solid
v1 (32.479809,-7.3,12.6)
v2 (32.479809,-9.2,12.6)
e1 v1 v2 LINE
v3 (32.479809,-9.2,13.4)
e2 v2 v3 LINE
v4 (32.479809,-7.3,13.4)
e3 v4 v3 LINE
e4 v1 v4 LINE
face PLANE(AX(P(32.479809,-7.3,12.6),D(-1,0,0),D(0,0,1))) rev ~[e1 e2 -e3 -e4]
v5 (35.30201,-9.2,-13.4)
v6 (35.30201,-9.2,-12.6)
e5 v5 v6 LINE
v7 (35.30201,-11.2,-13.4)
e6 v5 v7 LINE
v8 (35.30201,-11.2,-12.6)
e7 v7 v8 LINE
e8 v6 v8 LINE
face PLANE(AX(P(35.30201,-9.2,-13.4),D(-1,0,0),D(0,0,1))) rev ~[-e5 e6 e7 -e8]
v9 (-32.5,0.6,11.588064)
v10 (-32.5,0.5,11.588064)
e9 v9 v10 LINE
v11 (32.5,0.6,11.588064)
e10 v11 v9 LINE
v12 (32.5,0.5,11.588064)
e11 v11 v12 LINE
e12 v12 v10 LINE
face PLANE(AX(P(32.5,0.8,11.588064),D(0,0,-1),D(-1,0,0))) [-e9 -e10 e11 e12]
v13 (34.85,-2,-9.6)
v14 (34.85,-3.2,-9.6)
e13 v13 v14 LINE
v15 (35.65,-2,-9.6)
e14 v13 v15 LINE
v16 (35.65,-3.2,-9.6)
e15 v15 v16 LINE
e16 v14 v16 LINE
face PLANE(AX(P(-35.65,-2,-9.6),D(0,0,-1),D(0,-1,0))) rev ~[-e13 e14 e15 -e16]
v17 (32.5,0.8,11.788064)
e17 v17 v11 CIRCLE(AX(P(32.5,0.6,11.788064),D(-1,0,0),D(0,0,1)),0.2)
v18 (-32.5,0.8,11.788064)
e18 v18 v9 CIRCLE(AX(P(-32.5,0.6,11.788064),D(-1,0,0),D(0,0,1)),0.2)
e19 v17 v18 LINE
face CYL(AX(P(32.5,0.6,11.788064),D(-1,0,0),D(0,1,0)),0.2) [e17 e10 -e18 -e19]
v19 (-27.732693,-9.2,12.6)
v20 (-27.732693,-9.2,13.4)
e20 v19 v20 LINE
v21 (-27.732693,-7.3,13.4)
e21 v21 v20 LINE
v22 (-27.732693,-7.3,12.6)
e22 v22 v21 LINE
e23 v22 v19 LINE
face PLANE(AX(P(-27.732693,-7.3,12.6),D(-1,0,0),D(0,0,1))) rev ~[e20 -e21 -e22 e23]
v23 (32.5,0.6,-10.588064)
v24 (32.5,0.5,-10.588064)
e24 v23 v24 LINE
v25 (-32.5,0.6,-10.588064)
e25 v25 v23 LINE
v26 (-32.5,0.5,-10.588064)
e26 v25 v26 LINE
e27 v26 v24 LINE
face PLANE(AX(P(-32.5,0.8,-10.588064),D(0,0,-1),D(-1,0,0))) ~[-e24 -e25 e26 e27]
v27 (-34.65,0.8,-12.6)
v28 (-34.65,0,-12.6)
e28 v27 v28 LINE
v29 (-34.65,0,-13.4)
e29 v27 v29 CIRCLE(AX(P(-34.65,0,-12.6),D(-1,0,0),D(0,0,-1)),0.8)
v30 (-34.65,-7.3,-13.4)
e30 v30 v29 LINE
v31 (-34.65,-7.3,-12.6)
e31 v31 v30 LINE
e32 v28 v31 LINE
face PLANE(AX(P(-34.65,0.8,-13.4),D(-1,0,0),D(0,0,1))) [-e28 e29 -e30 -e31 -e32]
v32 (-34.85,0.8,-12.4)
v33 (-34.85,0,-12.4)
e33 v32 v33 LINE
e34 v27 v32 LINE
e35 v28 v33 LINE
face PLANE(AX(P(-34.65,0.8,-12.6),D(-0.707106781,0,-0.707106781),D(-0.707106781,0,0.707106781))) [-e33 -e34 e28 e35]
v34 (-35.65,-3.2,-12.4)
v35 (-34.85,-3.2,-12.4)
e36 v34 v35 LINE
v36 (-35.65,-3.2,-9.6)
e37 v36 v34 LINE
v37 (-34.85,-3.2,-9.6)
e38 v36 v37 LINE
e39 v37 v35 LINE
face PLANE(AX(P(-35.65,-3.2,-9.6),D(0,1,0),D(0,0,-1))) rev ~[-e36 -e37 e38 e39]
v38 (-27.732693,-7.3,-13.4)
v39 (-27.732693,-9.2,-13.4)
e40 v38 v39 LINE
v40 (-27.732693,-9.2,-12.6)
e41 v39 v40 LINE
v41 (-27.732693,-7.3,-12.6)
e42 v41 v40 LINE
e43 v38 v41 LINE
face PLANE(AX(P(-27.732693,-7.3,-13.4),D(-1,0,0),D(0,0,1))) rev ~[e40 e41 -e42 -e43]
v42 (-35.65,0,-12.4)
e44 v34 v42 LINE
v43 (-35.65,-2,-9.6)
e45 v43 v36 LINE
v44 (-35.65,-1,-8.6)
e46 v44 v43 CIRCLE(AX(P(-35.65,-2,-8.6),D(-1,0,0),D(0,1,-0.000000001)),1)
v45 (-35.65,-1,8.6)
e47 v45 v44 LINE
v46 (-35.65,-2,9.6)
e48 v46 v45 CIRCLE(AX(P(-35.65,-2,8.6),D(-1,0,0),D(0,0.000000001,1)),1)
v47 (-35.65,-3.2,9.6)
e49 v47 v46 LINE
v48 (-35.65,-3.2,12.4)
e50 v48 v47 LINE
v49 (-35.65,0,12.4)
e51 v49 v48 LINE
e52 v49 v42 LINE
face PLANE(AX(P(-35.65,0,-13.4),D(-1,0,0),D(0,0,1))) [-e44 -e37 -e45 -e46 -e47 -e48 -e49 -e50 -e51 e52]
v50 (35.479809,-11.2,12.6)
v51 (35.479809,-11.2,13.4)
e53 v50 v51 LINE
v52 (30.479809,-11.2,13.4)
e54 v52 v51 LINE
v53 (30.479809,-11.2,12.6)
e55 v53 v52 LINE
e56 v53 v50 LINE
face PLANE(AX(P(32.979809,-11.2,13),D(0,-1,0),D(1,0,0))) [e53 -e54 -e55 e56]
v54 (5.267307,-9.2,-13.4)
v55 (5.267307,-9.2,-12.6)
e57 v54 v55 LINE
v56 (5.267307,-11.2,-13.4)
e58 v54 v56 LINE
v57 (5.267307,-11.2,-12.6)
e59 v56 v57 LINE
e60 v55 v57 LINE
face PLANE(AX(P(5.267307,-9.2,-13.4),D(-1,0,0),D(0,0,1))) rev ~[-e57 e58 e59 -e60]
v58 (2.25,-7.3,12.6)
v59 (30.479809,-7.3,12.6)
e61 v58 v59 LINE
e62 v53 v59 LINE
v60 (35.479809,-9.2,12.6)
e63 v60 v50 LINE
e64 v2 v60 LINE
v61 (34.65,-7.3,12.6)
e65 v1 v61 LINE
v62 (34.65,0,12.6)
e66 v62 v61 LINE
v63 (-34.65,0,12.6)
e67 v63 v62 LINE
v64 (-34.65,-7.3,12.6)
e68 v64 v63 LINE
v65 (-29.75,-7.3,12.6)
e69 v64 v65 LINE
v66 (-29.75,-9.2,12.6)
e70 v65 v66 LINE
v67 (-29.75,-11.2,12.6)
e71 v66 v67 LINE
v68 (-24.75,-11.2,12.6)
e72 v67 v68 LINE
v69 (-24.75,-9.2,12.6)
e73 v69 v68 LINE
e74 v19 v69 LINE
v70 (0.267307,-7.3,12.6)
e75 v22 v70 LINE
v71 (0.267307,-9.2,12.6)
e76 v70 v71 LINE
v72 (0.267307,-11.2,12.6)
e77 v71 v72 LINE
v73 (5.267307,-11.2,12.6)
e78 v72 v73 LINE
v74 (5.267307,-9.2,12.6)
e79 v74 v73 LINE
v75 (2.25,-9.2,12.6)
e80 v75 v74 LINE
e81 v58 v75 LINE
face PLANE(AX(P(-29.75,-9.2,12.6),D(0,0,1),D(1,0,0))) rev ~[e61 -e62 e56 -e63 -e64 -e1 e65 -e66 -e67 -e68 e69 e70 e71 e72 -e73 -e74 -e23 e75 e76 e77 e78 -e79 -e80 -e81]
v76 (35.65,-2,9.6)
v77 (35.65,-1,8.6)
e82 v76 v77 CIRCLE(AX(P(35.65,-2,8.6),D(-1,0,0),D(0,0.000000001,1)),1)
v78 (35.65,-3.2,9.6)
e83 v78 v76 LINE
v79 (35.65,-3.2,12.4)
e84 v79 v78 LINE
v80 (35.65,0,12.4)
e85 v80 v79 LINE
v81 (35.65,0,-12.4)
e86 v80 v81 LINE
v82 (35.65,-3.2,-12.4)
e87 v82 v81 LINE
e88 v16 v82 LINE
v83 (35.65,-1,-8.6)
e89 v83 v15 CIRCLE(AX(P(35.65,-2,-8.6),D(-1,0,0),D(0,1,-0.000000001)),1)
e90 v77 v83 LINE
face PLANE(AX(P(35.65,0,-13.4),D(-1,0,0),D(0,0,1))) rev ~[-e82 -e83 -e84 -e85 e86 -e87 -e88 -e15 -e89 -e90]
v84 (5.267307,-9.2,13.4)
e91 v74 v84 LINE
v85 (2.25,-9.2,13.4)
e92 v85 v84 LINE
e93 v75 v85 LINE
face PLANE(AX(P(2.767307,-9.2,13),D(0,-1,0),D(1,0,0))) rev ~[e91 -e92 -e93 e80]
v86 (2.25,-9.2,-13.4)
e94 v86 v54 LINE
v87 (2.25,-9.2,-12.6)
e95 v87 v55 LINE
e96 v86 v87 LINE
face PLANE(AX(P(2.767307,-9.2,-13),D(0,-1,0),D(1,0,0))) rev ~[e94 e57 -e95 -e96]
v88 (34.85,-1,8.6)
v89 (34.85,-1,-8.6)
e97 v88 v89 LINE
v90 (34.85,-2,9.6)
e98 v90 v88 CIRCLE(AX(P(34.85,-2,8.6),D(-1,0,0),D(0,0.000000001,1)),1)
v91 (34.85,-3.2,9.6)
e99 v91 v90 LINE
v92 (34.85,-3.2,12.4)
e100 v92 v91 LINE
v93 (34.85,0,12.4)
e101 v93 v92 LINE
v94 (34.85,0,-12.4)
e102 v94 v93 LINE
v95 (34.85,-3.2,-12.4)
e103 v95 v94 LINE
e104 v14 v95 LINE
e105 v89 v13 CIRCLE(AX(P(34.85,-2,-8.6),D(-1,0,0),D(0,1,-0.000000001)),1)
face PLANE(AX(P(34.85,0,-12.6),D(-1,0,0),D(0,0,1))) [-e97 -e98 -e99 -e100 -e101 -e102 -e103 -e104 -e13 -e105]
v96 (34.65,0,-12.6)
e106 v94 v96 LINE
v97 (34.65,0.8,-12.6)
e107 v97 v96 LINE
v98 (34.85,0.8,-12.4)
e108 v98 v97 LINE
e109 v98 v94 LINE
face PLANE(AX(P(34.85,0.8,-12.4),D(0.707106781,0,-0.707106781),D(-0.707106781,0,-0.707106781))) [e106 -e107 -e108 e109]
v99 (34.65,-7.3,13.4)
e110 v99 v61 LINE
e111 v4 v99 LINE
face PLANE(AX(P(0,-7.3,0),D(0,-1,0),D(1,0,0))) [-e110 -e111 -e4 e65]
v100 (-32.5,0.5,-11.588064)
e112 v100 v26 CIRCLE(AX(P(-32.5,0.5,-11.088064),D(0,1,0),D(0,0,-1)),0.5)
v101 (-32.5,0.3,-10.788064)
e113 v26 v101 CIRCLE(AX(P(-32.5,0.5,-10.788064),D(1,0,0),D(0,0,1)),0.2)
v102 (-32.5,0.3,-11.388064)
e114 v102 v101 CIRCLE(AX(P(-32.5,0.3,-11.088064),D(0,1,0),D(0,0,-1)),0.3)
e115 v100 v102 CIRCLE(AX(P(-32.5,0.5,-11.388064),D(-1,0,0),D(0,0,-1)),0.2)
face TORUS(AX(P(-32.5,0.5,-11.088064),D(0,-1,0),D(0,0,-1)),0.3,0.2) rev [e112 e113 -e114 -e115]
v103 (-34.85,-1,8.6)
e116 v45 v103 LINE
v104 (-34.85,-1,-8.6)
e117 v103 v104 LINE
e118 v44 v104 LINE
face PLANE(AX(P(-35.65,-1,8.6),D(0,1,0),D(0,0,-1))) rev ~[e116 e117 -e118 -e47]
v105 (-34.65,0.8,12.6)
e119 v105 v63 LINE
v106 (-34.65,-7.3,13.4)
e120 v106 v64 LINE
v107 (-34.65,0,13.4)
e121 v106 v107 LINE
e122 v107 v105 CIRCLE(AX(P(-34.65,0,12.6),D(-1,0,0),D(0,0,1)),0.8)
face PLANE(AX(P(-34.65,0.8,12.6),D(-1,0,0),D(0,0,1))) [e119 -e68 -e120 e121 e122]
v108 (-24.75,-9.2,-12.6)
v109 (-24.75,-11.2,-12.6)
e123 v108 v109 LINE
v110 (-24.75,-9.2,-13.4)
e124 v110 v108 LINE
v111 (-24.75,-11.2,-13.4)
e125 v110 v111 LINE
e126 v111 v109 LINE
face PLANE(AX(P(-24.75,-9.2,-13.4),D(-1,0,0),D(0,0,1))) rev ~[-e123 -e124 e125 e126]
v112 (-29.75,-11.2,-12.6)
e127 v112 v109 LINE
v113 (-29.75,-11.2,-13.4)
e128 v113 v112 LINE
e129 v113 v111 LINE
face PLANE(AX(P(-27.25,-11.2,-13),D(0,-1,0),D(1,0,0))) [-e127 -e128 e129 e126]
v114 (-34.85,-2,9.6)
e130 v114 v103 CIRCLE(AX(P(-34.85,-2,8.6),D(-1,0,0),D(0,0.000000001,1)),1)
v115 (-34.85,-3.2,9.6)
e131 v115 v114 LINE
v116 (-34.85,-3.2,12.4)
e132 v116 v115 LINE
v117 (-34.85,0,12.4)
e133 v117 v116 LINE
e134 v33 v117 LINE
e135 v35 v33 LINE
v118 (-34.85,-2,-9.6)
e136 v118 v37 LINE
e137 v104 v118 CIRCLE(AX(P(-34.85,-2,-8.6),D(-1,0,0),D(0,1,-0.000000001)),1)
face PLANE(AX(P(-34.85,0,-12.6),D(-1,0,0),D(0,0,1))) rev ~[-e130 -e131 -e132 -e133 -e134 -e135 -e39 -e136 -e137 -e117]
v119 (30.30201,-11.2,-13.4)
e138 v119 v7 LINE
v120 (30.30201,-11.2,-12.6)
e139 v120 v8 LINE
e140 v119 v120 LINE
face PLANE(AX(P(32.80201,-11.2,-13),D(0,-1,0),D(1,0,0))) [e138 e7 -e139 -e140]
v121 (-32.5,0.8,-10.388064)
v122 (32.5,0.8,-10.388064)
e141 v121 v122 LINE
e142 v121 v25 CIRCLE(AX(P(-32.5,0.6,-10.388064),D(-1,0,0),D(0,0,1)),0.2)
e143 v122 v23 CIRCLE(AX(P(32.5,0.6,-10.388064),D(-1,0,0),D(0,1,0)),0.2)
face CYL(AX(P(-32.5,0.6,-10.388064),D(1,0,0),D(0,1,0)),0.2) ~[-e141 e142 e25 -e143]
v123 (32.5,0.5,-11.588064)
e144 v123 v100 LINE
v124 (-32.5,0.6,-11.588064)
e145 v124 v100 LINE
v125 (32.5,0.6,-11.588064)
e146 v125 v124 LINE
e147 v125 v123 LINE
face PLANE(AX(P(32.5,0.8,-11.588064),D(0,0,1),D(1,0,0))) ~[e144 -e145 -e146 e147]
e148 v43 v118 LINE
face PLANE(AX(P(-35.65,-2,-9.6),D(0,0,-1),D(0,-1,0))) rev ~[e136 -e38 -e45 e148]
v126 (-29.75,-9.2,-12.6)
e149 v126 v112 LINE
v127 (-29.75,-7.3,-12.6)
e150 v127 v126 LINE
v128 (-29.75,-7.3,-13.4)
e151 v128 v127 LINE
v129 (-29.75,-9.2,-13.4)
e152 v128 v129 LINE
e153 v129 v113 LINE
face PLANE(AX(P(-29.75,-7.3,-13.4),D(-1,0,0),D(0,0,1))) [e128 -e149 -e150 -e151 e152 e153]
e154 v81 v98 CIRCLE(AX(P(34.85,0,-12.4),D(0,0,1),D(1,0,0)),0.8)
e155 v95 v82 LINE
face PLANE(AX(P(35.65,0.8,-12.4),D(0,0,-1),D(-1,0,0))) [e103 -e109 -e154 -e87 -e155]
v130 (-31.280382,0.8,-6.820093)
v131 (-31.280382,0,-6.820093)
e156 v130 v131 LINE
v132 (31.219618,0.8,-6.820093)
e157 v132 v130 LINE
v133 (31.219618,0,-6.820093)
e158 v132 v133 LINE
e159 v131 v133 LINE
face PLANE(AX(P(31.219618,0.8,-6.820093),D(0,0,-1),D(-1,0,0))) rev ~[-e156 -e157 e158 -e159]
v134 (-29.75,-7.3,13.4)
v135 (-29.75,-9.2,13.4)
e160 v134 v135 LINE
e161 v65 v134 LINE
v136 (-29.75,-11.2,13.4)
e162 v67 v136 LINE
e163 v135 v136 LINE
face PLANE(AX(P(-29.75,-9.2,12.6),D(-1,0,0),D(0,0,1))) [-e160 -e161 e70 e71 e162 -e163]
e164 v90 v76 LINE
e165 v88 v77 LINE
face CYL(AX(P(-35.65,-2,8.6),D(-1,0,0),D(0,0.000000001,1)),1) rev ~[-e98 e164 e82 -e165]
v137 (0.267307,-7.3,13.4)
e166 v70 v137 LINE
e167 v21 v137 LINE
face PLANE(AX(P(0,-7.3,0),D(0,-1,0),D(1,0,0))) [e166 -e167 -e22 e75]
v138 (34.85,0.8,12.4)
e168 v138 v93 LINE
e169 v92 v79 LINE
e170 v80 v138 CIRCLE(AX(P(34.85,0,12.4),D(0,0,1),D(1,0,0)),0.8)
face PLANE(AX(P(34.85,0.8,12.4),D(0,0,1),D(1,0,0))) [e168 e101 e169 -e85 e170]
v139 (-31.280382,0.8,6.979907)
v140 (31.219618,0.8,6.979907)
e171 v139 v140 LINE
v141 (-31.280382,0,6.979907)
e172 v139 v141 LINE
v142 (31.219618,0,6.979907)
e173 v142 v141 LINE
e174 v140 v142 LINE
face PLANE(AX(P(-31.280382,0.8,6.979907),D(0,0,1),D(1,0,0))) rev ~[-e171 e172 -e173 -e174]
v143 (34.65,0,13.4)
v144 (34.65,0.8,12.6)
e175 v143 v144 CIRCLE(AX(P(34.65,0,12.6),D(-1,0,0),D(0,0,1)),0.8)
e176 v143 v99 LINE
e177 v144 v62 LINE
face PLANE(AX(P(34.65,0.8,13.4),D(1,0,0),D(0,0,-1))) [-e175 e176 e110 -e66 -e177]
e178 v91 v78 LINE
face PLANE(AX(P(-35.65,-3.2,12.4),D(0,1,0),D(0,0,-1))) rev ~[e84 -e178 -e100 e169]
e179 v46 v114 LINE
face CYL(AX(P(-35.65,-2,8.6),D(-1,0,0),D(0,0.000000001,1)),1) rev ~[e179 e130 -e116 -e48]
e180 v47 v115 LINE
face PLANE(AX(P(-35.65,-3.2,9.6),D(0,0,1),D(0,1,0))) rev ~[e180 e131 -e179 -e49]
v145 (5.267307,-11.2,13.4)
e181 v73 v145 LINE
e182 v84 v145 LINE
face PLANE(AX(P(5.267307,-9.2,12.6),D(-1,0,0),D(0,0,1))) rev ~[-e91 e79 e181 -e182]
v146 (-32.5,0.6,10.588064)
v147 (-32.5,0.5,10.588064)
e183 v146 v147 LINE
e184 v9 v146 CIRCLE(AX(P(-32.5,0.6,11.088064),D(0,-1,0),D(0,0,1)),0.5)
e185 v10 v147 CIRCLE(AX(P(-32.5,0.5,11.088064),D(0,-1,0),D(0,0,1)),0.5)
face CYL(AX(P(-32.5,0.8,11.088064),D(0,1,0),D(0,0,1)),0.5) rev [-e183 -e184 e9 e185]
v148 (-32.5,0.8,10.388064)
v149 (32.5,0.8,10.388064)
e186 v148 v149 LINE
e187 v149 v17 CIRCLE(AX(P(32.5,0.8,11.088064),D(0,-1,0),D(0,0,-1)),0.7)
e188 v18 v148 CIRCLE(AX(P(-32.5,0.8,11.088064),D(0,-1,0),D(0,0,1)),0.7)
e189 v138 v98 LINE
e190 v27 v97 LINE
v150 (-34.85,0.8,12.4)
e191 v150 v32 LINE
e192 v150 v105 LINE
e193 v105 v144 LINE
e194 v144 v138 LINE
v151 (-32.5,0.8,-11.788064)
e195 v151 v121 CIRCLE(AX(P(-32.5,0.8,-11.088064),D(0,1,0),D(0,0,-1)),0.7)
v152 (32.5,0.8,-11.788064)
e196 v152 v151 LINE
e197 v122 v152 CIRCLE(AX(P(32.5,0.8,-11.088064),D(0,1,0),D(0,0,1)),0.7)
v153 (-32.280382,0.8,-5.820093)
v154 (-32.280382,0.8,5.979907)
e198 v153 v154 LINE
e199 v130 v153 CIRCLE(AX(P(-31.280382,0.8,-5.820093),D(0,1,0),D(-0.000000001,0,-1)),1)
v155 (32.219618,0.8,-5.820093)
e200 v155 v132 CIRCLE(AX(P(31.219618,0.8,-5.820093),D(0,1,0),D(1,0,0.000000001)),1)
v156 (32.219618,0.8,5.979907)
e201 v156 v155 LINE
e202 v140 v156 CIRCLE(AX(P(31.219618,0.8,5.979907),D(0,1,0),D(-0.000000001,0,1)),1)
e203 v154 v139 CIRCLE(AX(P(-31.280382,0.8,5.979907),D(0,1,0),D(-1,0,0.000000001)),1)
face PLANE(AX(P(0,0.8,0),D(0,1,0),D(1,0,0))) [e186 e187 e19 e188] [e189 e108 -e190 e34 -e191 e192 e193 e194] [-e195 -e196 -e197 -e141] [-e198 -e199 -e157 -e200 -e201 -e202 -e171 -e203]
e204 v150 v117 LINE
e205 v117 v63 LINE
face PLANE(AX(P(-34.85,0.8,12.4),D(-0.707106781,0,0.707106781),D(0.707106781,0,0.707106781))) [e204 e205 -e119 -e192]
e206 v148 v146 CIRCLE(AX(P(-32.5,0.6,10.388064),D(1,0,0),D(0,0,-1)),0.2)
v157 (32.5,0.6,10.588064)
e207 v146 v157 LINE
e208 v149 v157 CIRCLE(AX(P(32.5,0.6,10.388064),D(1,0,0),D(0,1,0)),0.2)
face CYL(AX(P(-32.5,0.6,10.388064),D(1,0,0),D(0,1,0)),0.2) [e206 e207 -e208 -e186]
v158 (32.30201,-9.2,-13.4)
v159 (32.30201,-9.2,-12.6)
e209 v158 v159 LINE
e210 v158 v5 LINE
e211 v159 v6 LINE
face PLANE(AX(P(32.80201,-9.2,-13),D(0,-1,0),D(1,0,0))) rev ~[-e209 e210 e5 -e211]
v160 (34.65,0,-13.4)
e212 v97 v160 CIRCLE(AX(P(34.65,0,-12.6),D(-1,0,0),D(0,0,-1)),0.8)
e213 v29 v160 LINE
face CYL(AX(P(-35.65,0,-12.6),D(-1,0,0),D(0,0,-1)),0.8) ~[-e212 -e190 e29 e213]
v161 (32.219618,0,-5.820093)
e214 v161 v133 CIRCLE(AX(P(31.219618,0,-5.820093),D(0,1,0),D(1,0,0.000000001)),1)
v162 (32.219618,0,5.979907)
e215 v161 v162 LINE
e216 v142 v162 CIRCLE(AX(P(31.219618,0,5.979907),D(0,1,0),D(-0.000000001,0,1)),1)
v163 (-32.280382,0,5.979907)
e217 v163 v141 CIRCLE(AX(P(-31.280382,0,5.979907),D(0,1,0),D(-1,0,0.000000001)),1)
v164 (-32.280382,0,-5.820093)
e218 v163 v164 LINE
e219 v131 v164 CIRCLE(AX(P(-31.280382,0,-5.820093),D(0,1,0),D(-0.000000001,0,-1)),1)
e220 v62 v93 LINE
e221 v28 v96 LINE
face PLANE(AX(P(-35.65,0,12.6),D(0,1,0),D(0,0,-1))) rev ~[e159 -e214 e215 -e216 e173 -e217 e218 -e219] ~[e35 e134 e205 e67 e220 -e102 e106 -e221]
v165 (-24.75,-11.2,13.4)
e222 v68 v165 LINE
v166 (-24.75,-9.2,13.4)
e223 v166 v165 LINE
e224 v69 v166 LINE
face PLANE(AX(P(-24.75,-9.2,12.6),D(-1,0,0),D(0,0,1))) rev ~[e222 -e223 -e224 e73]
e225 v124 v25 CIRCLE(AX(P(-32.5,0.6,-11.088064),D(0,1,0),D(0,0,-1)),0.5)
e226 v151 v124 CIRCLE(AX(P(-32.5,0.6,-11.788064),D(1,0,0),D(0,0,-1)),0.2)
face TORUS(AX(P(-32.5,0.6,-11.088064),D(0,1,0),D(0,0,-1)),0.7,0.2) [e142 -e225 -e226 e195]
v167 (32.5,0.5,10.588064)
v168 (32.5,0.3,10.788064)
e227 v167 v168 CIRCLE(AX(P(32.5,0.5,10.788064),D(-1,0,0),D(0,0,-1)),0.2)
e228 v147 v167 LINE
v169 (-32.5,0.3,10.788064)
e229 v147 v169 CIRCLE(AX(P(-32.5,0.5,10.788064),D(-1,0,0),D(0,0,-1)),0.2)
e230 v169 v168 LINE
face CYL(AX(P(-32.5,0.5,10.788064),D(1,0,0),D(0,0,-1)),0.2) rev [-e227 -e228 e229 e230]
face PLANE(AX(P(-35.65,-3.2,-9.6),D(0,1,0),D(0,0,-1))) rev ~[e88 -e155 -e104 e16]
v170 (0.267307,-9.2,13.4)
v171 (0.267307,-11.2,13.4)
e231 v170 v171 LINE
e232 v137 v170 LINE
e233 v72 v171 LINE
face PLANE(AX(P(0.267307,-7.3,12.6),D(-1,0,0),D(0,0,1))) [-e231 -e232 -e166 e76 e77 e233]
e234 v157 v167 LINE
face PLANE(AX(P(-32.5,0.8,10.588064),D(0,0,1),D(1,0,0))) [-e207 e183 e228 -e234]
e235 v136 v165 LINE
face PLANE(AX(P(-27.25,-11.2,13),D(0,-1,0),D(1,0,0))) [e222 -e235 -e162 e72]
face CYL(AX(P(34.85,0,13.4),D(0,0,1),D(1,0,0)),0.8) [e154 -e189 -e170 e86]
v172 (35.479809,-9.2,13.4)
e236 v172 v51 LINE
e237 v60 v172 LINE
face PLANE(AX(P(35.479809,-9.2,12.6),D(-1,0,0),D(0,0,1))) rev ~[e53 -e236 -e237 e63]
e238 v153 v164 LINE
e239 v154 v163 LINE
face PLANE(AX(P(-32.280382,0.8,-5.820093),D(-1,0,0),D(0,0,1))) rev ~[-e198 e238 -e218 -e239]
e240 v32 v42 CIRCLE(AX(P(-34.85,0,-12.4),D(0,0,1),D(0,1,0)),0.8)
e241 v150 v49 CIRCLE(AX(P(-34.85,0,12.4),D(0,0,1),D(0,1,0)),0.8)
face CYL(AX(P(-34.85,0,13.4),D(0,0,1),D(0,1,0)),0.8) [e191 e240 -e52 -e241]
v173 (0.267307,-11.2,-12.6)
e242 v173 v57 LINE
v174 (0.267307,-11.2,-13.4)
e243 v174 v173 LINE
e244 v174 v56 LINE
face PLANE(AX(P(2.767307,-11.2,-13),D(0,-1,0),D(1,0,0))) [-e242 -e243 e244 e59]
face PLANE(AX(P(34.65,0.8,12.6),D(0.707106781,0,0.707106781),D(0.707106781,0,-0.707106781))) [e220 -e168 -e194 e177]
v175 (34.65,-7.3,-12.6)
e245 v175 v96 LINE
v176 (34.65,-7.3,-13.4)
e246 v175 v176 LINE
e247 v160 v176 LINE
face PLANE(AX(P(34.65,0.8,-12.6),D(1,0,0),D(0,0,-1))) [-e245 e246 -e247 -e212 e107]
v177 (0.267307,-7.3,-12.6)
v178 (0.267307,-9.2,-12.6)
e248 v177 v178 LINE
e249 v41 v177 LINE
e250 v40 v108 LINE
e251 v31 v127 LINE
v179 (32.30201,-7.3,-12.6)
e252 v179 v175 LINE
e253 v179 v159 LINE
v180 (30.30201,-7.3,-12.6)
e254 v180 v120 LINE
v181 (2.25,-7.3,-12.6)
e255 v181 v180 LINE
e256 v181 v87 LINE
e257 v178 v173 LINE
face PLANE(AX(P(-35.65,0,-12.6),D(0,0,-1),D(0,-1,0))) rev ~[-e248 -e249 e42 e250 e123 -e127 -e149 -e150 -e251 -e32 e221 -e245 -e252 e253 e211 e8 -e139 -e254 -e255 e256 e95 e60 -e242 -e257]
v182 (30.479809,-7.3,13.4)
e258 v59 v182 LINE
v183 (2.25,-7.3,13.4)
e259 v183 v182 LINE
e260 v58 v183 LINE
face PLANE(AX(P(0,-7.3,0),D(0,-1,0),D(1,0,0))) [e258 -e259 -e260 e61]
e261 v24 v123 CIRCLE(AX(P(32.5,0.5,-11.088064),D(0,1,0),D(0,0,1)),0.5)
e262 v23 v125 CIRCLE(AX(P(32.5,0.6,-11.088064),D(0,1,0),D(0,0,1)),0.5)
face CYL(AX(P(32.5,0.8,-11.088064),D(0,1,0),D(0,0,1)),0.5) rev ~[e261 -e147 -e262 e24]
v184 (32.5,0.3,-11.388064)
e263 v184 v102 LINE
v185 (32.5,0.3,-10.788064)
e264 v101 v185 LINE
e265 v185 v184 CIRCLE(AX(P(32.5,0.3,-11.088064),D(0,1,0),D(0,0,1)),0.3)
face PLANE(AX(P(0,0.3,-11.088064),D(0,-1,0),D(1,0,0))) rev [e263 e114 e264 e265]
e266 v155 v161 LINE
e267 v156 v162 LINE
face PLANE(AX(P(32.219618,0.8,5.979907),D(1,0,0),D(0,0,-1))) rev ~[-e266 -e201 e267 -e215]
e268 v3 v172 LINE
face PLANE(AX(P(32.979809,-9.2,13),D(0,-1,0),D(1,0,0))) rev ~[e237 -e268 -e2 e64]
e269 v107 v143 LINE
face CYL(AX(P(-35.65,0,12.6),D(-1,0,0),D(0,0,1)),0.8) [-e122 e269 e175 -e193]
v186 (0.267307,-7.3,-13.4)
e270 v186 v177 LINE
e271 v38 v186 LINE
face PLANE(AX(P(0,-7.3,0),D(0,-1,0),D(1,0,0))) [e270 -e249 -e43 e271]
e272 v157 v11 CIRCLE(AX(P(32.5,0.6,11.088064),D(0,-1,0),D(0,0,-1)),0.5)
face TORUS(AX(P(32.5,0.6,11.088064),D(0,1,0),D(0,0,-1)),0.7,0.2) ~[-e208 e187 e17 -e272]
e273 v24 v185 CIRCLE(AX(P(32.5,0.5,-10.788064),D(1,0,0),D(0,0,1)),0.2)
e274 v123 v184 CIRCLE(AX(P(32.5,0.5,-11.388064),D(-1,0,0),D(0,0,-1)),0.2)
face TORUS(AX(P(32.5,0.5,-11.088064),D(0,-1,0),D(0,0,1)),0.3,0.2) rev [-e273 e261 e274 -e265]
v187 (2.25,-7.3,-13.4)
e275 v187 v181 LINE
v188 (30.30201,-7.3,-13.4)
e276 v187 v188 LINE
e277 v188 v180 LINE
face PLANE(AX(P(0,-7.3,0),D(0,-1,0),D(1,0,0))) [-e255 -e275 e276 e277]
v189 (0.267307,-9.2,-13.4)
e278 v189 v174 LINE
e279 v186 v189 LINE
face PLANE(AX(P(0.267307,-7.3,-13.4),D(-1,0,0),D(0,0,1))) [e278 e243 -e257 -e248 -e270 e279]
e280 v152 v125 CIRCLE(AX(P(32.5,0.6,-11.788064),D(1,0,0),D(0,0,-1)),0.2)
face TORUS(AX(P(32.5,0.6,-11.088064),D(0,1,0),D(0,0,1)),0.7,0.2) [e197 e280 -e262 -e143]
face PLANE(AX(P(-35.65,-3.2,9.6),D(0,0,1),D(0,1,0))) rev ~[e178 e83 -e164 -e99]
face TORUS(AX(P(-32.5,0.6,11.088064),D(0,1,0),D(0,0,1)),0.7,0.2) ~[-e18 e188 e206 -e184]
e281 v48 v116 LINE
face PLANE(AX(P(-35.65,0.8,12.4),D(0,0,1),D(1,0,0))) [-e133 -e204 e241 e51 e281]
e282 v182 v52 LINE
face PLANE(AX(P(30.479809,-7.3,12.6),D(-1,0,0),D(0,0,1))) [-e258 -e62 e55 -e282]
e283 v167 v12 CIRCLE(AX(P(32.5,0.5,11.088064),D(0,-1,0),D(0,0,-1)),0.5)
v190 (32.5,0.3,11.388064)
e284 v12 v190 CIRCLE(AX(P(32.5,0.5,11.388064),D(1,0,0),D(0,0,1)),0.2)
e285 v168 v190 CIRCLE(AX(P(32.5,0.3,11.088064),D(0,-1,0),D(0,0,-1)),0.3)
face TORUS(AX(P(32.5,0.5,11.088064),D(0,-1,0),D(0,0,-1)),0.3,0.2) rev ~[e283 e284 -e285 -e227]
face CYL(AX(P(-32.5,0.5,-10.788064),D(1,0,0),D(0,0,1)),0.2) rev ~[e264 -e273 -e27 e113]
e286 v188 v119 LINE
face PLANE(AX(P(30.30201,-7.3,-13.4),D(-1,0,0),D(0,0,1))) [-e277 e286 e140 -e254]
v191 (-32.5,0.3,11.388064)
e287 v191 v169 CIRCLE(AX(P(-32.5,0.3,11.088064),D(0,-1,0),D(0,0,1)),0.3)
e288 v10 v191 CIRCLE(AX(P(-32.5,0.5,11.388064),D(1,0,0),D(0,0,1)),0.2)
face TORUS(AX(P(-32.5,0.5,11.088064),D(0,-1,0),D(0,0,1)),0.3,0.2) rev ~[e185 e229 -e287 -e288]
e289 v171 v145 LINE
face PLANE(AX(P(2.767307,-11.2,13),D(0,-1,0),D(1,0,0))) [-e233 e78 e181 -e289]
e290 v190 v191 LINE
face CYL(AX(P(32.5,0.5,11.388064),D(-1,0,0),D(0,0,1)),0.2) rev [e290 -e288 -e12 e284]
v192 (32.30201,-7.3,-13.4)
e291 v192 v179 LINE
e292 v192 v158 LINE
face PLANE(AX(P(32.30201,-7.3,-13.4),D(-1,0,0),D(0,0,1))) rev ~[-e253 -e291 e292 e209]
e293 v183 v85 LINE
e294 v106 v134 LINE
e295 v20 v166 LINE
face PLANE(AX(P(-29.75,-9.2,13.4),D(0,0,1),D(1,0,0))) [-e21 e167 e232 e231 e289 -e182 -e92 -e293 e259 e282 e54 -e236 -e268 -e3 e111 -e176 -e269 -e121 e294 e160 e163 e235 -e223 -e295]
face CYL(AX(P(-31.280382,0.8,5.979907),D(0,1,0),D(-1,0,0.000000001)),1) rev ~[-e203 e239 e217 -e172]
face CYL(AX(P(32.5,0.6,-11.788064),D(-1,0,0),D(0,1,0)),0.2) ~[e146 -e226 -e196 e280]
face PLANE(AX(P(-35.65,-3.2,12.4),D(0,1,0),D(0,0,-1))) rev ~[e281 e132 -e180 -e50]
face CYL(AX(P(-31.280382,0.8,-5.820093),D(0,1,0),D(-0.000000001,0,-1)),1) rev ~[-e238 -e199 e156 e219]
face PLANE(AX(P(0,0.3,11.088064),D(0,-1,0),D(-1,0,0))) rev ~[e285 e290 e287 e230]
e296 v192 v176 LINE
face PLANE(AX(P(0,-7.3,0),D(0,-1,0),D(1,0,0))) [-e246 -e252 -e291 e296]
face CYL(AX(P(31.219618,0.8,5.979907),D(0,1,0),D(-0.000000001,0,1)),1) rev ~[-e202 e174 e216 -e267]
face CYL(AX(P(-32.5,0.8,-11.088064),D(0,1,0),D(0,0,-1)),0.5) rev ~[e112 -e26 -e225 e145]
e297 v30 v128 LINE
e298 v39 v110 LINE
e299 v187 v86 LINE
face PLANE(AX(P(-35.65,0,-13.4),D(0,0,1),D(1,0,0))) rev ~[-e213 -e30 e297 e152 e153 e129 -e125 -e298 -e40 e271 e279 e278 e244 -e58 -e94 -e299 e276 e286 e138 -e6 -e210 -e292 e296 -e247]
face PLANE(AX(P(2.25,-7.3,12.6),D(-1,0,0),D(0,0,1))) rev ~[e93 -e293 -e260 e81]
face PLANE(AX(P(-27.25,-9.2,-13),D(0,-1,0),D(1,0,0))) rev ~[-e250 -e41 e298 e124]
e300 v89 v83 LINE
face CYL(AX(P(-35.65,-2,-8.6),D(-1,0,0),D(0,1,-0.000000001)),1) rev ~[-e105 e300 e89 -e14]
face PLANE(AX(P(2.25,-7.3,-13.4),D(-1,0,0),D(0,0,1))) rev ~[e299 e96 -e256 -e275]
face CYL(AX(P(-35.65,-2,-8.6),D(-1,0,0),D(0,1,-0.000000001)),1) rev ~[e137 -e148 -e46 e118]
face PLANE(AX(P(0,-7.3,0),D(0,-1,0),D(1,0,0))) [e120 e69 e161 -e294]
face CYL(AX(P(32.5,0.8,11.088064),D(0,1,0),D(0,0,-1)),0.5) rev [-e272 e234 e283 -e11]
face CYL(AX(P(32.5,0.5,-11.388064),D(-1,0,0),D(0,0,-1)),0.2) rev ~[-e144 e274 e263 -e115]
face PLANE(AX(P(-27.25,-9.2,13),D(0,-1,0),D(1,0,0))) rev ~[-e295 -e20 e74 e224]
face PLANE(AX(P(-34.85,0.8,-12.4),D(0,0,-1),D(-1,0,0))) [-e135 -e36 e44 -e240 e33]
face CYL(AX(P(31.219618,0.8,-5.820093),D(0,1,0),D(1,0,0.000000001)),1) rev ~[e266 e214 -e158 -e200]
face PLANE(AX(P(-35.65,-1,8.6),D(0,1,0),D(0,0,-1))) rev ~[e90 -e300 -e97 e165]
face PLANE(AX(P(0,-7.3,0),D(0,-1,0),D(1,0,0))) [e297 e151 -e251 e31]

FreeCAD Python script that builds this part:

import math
import FreeCAD as App
import Part
import Sketcher

V = App.Vector
Q = App.Units.Quantity


def edges_at(feature, points):
    """Names of the edges that pass closest to the given points."""
    edges = feature.Shape.Edges
    near = lambda p: min(range(len(edges)), key=lambda i: edges[i].distToShape(Part.Vertex(*p))[0])
    return sorted({f"Edge{near(p) + 1}" for p in points})


def add_polygon(sketch, points):
    """Adds a closed chain of lines whose ends are joined by coincident constraints."""
    first, n = sketch.GeometryCount, len(points)
    for a, b in zip(points, points[1:] + points[:1]):
        sketch.addGeometry(Part.LineSegment(App.Vector(*a, 0), App.Vector(*b, 0)), False)
    for i in range(n):
        sketch.addConstraint(Sketcher.Constraint("Coincident", first + i, 2, first + (i + 1) % n, 1))

doc = App.newDocument("Part")
body = doc.addObject("PartDesign::Body", "Body")

sketch1 = body.newObject("Sketcher::SketchObject", "Sketch")
sketch1.AttachmentSupport = (doc.getObject("XZ_Plane"), [""])
sketch1.MapMode = "FlatFace"
add_polygon(sketch1, [(-36, -13), (-36, 13), (36, 13), (36, -13)])
sketch1.addConstraint([
    Sketcher.Constraint("Vertical", 0),
    Sketcher.Constraint("Horizontal", 1),
    Sketcher.Constraint("Vertical", 2),
    Sketcher.Constraint("Horizontal", 3),
    Sketcher.Constraint("Symmetric", 0, 2, 2, 2, -1, 1),
    Sketcher.Constraint("DistanceX", 1, 1, 1, 2, Q("71.3 mm")),
    Sketcher.Constraint("DistanceY", 0, 1, 0, 2, Q("26.8 mm")),
])
pad1 = body.newObject("PartDesign::Pad", "Pad")
pad1.Profile = sketch1
pad1.Length = 0.8
pad1.Reversed = True

sketch2 = body.newObject("Sketcher::SketchObject", "Sketch001")
sketch2.AttachmentSupport = (doc.getObject("XZ_Plane"), [""])
sketch2.MapMode = "FlatFace"
add_polygon(sketch2, [(-36, 13), (-36, -13), (36, -13), (36, 13)])
add_polygon(sketch2, [(35, -13), (-35, -13), (-35, 13), (35, 13)])
sketch2.addConstraint([
    Sketcher.Constraint("Vertical", 0),
    Sketcher.Constraint("Horizontal", 1),
    Sketcher.Constraint("Vertical", 2),
    Sketcher.Constraint("Horizontal", 3),
    Sketcher.Constraint("Horizontal", 4),
    Sketcher.Constraint("Vertical", 5),
    Sketcher.Constraint("Horizontal", 6),
    Sketcher.Constraint("Vertical", 7),
    Sketcher.Constraint("Symmetric", 0, 2, 2, 2, -1, 1),
    Sketcher.Constraint("Symmetric", 4, 2, 6, 2, -1, 1),
    Sketcher.Constraint("DistanceX", 1, 1, 1, 2, Q("71.3 mm")),
    Sketcher.Constraint("DistanceX", 4, 2, 4, 1, Q("69.7 mm")),
    Sketcher.Constraint("DistanceY", 0, 2, 0, 1, Q("26.8 mm")),
    Sketcher.Constraint("DistanceY", 5, 1, 5, 2, Q("25.2 mm")),
])
pad2 = body.newObject("PartDesign::Pad", "Pad001")
pad2.Profile = sketch2
pad2.Length = 7.3

sketch3 = body.newObject("Sketcher::SketchObject", "Sketch002")
sketch3.AttachmentSupport = (doc.getObject("YZ_Plane"), [""])
sketch3.MapMode = "FlatFace"
sketch3.AttachmentOffset = App.Placement(V(0, 0, -35.65), App.Rotation())
sketch3.addGeometry([
    Part.LineSegment(V(0, -12.4, 0), V(0, -12.6, 0)),
    Part.LineSegment(V(0, -12.6, 0), V(-7.3, -12.6, 0)),
    Part.LineSegment(V(-7.3, -12.6, 0), V(-7.3, 12.6, 0)),
    Part.LineSegment(V(-7.3, 12.6, 0), V(0, 12.6, 0)),
    Part.LineSegment(V(0, 12.6, 0), V(0, 12.4, 0)),
    Part.LineSegment(V(0, 12.4, 0), V(-3.2, 12.4, 0)),
    Part.LineSegment(V(-3.2, 12.4, 0), V(-3.2, 9.6, 0)),
    Part.LineSegment(V(-3.2, 9.6, 0), V(-2, 9.6, 0)),
    Part.ArcOfCircle(Part.Circle(V(-2, 8.6, 0), V(0, 0, 1), 1), math.radians(0), math.radians(90)),
    Part.LineSegment(V(-1, 8.6, 0), V(-1, -8.6, 0)),
    Part.ArcOfCircle(Part.Circle(V(-2, -8.6, 0), V(0, 0, 1), 1), math.radians(-90), math.radians(0)),
    Part.LineSegment(V(-2, -9.6, 0), V(-3.2, -9.6, 0)),
    Part.LineSegment(V(-3.2, -9.6, 0), V(-3.2, -12.4, 0)),
    Part.LineSegment(V(-3.2, -12.4, 0), V(0, -12.4, 0)),
    Part.LineSegment(V(0, 13.4, 0), V(0.8, 13.4, 0)),
    Part.LineSegment(V(0.8, 13.4, 0), V(0.8, 12.6, 0)),
    Part.ArcOfCircle(Part.Circle(V(0, 12.6, 0), V(0, 0, 1), 0.8), math.radians(0), math.radians(90)),
    Part.LineSegment(V(0.8, -12.6, 0), V(0.8, -13.4, 0)),
    Part.LineSegment(V(0.8, -13.4, 0), V(0, -13.4, 0)),
    Part.ArcOfCircle(Part.Circle(V(0, -12.6, 0), V(0, 0, 1), 0.8), math.radians(-90), math.radians(0)),
], False)
sketch3.addConstraint([
    Sketcher.Constraint("Coincident", 0, 2, 1, 1),
    Sketcher.Constraint("Coincident", 1, 2, 2, 1),
    Sketcher.Constraint("Coincident", 2, 2, 3, 1),
    Sketcher.Constraint("Coincident", 3, 2, 4, 1),
    Sketcher.Constraint("Coincident", 4, 2, 5, 1),
    Sketcher.Constraint("Coincident", 5, 2, 6, 1),
    Sketcher.Constraint("Coincident", 6, 2, 7, 1),
    Sketcher.Constraint("Tangent", 7, 2, 8, 2),
    Sketcher.Constraint("Tangent", 8, 1, 9, 1),
    Sketcher.Constraint("Tangent", 9, 2, 10, 2),
    Sketcher.Constraint("Tangent", 10, 1, 11, 1),
    Sketcher.Constraint("Coincident", 11, 2, 12, 1),
    Sketcher.Constraint("Coincident", 12, 2, 13, 1),
    Sketcher.Constraint("Coincident", 13, 2, 0, 1),
    Sketcher.Constraint("Coincident", 14, 2, 15, 1),
    Sketcher.Constraint("Tangent", 15, 2, 16, 1),
    Sketcher.Constraint("Tangent", 16, 2, 14, 1),
    Sketcher.Constraint("Coincident", 17, 2, 18, 1),
    Sketcher.Constraint("Tangent", 18, 2, 19, 1),
    Sketcher.Constraint("Tangent", 19, 2, 17, 1),
    Sketcher.Constraint("Vertical", 0),
    Sketcher.Constraint("Horizontal", 1),
    Sketcher.Constraint("Vertical", 2),
    Sketcher.Constraint("Horizontal", 3),
    Sketcher.Constraint("Vertical", 4),
    Sketcher.Constraint("Horizontal", 5),
    Sketcher.Constraint("Vertical", 6),
    Sketcher.Constraint("Horizontal", 7),
    Sketcher.Constraint("Vertical", 9),
    Sketcher.Constraint("Horizontal", 11),
    Sketcher.Constraint("Vertical", 12),
    Sketcher.Constraint("Horizontal", 13),
    Sketcher.Constraint("Horizontal", 14),
    Sketcher.Constraint("Vertical", 15),
    Sketcher.Constraint("Vertical", 17),
    Sketcher.Constraint("Horizontal", 18),
    Sketcher.Constraint("Coincident", 0, 2, 19, 3),
    Sketcher.Constraint("Coincident", 3, 2, 16, 3),
    Sketcher.Constraint("Equal", 8, 10),
    Sketcher.Constraint("Equal", 16, 19),
    Sketcher.Constraint("Symmetric", 16, 3, 19, 3, -1, 1),
    Sketcher.Constraint("Symmetric", 6, 2, 11, 2, -1),
    Sketcher.Constraint("Symmetric", 4, 2, 13, 2, -1),
    Sketcher.Constraint("Radius", 8, Q("1 mm")),
    Sketcher.Constraint("Radius", 16, Q("0.8 mm")),
    Sketcher.Constraint("DistanceX", 1, 2, 1, 1, Q("7.3 mm")),
    Sketcher.Constraint("DistanceX", 5, 2, 5, 1, Q("3.2 mm")),
    Sketcher.Constraint("DistanceX", 7, 1, 7, 2, Q("1.2 mm")),
    Sketcher.Constraint("DistanceY", 0, 2, 0, 1, Q("0.2 mm")),
    Sketcher.Constraint("DistanceY", 2, 1, 2, 2, Q("25.2 mm")),
    Sketcher.Constraint("DistanceY", 6, 2, 6, 1, Q("2.8 mm")),
])
pocket1 = body.newObject("PartDesign::Pocket", "Pocket")
pocket1.Profile = sketch3
pocket1.Type = "ThroughAll"
pocket1.Reversed = True

sketch4 = body.newObject("Sketcher::SketchObject", "Sketch003")
sketch4.AttachmentSupport = (doc.getObject("XY_Plane"), [""])
sketch4.MapMode = "FlatFace"
sketch4.AttachmentOffset = App.Placement(V(0, 0, 13.4), App.Rotation())
sketch4.addGeometry(Part.ArcOfCircle(Part.Circle(V(-34.85, 0, 0), V(0, 0, 1), 0.8), math.radians(90), math.radians(180)), False)
sketch4.addGeometry(Part.LineSegment(V(-34.85, 0.8, 0), V(-35.65, 0.8, 0)), False)
sketch4.addGeometry(Part.LineSegment(V(-35.65, 0.8, 0), V(-35.65, 0, 0)), False)
add_polygon(sketch4, [(-34.65, 0), (-34.85, 0), (-34.85, -3.2), (-35.65, -3.2), (-35.65, -7.3), (-34.65, -7.3)])
add_polygon(sketch4, [(34.85, 0), (34.65, 0), (34.65, -7.3), (35.65, -7.3), (35.65, -3.2), (34.85, -3.2)])
sketch4.addGeometry(Part.LineSegment(V(35.65, 0, 0), V(35.65, 0.8, 0)), False)
sketch4.addGeometry(Part.LineSegment(V(35.65, 0.8, 0), V(34.85, 0.8, 0)), False)
sketch4.addGeometry(Part.ArcOfCircle(Part.Circle(V(34.85, 0, 0), V(0, 0, 1), 0.8), math.radians(0), math.radians(90)), False)
sketch4.addConstraint([
    Sketcher.Constraint("Tangent", 0, 1, 1, 1),
    Sketcher.Constraint("Coincident", 1, 2, 2, 1),
    Sketcher.Constraint("Tangent", 2, 2, 0, 2),
    Sketcher.Constraint("Coincident", 15, 2, 16, 1),
    Sketcher.Constraint("Tangent", 16, 2, 17, 2),
    Sketcher.Constraint("Tangent", 17, 1, 15, 1),
    Sketcher.Constraint("Horizontal", 1),
    Sketcher.Constraint("Vertical", 2),
    Sketcher.Constraint("Horizontal", 3),
    Sketcher.Constraint("Vertical", 4),
    Sketcher.Constraint("Horizontal", 5),
    Sketcher.Constraint("Vertical", 6),
    Sketcher.Constraint("Horizontal", 7),
    Sketcher.Constraint("Vertical", 8),
    Sketcher.Constraint("Horizontal", 9),
    Sketcher.Constraint("Vertical", 10),
    Sketcher.Constraint("Horizontal", 11),
    Sketcher.Constraint("Vertical", 12),
    Sketcher.Constraint("Horizontal", 13),
    Sketcher.Constraint("Vertical", 14),
    Sketcher.Constraint("Vertical", 15),
    Sketcher.Constraint("Horizontal", 16),
    Sketcher.Constraint("Coincident", 3, 2, 0, 3),
    Sketcher.Constraint("Coincident", 14, 2, 17, 3),
    Sketcher.Constraint("Equal", 0, 17),
    Sketcher.Constraint("Symmetric", 0, 3, 17, 3, -1, 1),
    Sketcher.Constraint("Symmetric", 8, 2, 9, 2, -2),
    Sketcher.Constraint("Symmetric", 6, 2, 11, 2, -2),
    Sketcher.Constraint("Horizontal", 5, 2, 12, 2),
    Sketcher.Constraint("Vertical", 2, 2, 5, 2),
    Sketcher.Constraint("Radius", 0, Q("0.8 mm")),
    Sketcher.Constraint("DistanceX", 7, 1, 7, 2, Q("1 mm")),
    Sketcher.Constraint("DistanceY", 4, 2, 4, 1, Q("3.2 mm")),
    Sketcher.Constraint("DistanceY", 6, 2, 6, 1, Q("4.1 mm")),
    Sketcher.Constraint("DistanceX", 0, 3, 17, 3, Q("69.7 mm")),
])
pocket2 = body.newObject("PartDesign::Pocket", "Pocket001")
pocket2.Profile = sketch4
pocket2.Type = "ThroughAll"

sketch5 = body.newObject("Sketcher::SketchObject", "Sketch004")
sketch5.AttachmentSupport = (doc.getObject("XZ_Plane"), [""])
sketch5.MapMode = "FlatFace"
sketch5.AttachmentOffset = App.Placement(V(0, 0, -0.8), App.Rotation())
add_polygon(sketch5, [(-34.65, 13.4), (-34.65, 12.6), (-34.85, 12.4), (-35.65, 12.4), (-35.65, 13.4)])
add_polygon(sketch5, [(34.65, 13.4), (35.65, 13.4), (35.65, 12.4), (34.85, 12.4), (34.65, 12.6)])
add_polygon(sketch5, [(34.65, -13.4), (34.65, -12.6), (34.85, -12.4), (35.65, -12.4), (35.65, -13.4)])
add_polygon(sketch5, [(-34.65, -13.4), (-35.65, -13.4), (-35.65, -12.4), (-34.85, -12.4), (-34.65, -12.6)])
sketch5.addConstraint([
    Sketcher.Constraint("Vertical", 0),
    Sketcher.Constraint("Horizontal", 2),
    Sketcher.Constraint("Vertical", 3),
    Sketcher.Constraint("Horizontal", 4),
    Sketcher.Constraint("Horizontal", 5),
    Sketcher.Constraint("Vertical", 6),
    Sketcher.Constraint("Horizontal", 7),
    Sketcher.Constraint("Vertical", 9),
    Sketcher.Constraint("Vertical", 10),
    Sketcher.Constraint("Horizontal", 12),
    Sketcher.Constraint("Vertical", 13),
    Sketcher.Constraint("Horizontal", 14),
    Sketcher.Constraint("Horizontal", 15),
    Sketcher.Constraint("Vertical", 16),
    Sketcher.Constraint("Horizontal", 17),
    Sketcher.Constraint("Vertical", 19),
    Sketcher.Constraint("Symmetric", 0, 2, 10, 2, -1, 1),
    Sketcher.Constraint("Symmetric", 1, 2, 11, 2, -1, 1),
    Sketcher.Constraint("Symmetric", 3, 2, 13, 2, -1, 1),
    Sketcher.Constraint("Symmetric", 5, 2, 15, 2, -1, 1),
    Sketcher.Constraint("Symmetric", 7, 2, 17, 2, -1, 1),
    Sketcher.Constraint("Symmetric", 8, 2, 18, 2, -1, 1),
    Sketcher.Constraint("Symmetric", 3, 2, 5, 2, -2),
    Sketcher.Constraint("Symmetric", 1, 2, 7, 2, -2),
    Sketcher.Constraint("Symmetric", 0, 2, 8, 2, -2),
    Sketcher.Constraint("Perpendicular", 1, 8),
    Sketcher.Constraint("Equal", 17, 0),
    Sketcher.Constraint("DistanceX", 4, 1, 4, 2, Q("1 mm")),
    Sketcher.Constraint("DistanceX", 2, 2, 2, 1, Q("0.8 mm")),
    Sketcher.Constraint("DistanceY", 10, 2, 7, 2, Q("25 mm")),
    Sketcher.Constraint("DistanceX", 4, 2, 5, 2, Q("70.3 mm")),
])
pocket3 = body.newObject("PartDesign::Pocket", "Pocket002")
pocket3.Profile = sketch5
pocket3.Type = "ThroughAll"
pocket3.Reversed = True

sketch6 = body.newObject("Sketcher::SketchObject", "Sketch005")
sketch6.AttachmentSupport = (doc.getObject("XZ_Plane"), [""])
sketch6.MapMode = "FlatFace"
sketch6.AttachmentOffset = App.Placement(V(0, 0, 7.3), App.Rotation())
add_polygon(sketch6, [(30.5, 13.4), (30.5, 12.6), (32.5, 12.6), (32.5, 13.4)])
add_polygon(sketch6, [(30.3, -12.6), (30.3, -13.4), (32.3, -13.4), (32.3, -12.6)])
add_polygon(sketch6, [(0.3, -12.6), (0.3, -13.4), (2.2, -13.4), (2.2, -12.6)])
add_polygon(sketch6, [(-29.8, 13.4), (-29.8, 12.6), (-27.7, 12.6), (-27.7, 13.4)])
add_polygon(sketch6, [(0.3, 13.4), (0.3, 12.6), (2.2, 12.6), (2.2, 13.4)])
add_polygon(sketch6, [(-29.8, -12.6), (-29.8, -13.4), (-27.7, -13.4), (-27.7, -12.6)])
sketch6.addConstraint([
    Sketcher.Constraint("Vertical", 0),
    Sketcher.Constraint("Horizontal", 1),
    Sketcher.Constraint("Vertical", 2),
    Sketcher.Constraint("Horizontal", 3),
    Sketcher.Constraint("Vertical", 4),
    Sketcher.Constraint("Horizontal", 5),
    Sketcher.Constraint("Vertical", 6),
    Sketcher.Constraint("Horizontal", 7),
    Sketcher.Constraint("Vertical", 8),
    Sketcher.Constraint("Horizontal", 9),
    Sketcher.Constraint("Vertical", 10),
    Sketcher.Constraint("Horizontal", 11),
    Sketcher.Constraint("Vertical", 12),
    Sketcher.Constraint("Horizontal", 13),
    Sketcher.Constraint("Vertical", 14),
    Sketcher.Constraint("Horizontal", 15),
    Sketcher.Constraint("Vertical", 16),
    Sketcher.Constraint("Horizontal", 17),
    Sketcher.Constraint("Vertical", 18),
    Sketcher.Constraint("Horizontal", 19),
    Sketcher.Constraint("Vertical", 20),
    Sketcher.Constraint("Horizontal", 21),
    Sketcher.Constraint("Vertical", 22),
    Sketcher.Constraint("Horizontal", 23),
    Sketcher.Constraint("Symmetric", 11, 2, 16, 2, -1),
    Sketcher.Constraint("Symmetric", 9, 2, 18, 2, -1),
    Sketcher.Constraint("Symmetric", 15, 2, 20, 2, -1),
    Sketcher.Constraint("Symmetric", 13, 2, 22, 2, -1),
    Sketcher.Constraint("Horizontal", 5, 2, 8, 2),
    Sketcher.Constraint("Horizontal", 7, 2, 10, 2),
    Sketcher.Constraint("Horizontal", 1, 2, 12, 2),
    Sketcher.Constraint("Horizontal", 3, 2, 14, 2),
    Sketcher.Constraint("Horizontal", 13, 2, 16, 2),
    Sketcher.Constraint("Horizontal", 15, 2, 18, 2),
    Sketcher.Constraint("Equal", 3, 5),
    Sketcher.Constraint("DistanceX", 1, 1, 1, 2, Q("2 mm")),
    Sketcher.Constraint("DistanceY", 0, 2, 0, 1, Q("0.8 mm")),
    Sketcher.Constraint("DistanceY", 4, 2, 0, 2, Q("26 mm")),
    Sketcher.Constraint("DistanceX", 12, 2, 10, 2, Q("32 mm")),
    Sketcher.Constraint("DistanceX", 13, 2, 11, 2, Q("28 mm")),
    Sketcher.Constraint("DistanceX", -1, 1, 9, 2, Q("2.25 mm")),
    Sketcher.Constraint("DistanceX", 4, 2, 0, 2, Q("0.177799 mm")),
    Sketcher.Constraint("DistanceX", 8, 2, 0, 2, Q("30.212502 mm")),
    Sketcher.Constraint("DistanceX", 9, 1, 9, 2, Q("1.982693 mm")),
])
pad3 = body.newObject("PartDesign::Pad", "Pad002")
pad3.Profile = sketch6
pad3.Length = 1.9

sketch7 = body.newObject("Sketcher::SketchObject", "Sketch006")
sketch7.AttachmentSupport = (doc.getObject("XZ_Plane"), [""])
sketch7.MapMode = "FlatFace"
sketch7.AttachmentOffset = App.Placement(V(0, 0, 9.2), App.Rotation())
add_polygon(sketch7, [(-29.8, 13.4), (-29.8, 12.6), (-24.8, 12.6), (-24.8, 13.4)])
add_polygon(sketch7, [(0.3, -12.6), (0.3, -13.4), (5.3, -13.4), (5.3, -12.6)])
add_polygon(sketch7, [(-29.8, -12.6), (-29.8, -13.4), (-24.8, -13.4), (-24.8, -12.6)])
add_polygon(sketch7, [(0.3, 13.4), (0.3, 12.6), (5.3, 12.6), (5.3, 13.4)])
add_polygon(sketch7, [(30.5, 13.4), (30.5, 12.6), (35.5, 12.6), (35.5, 13.4)])
add_polygon(sketch7, [(30.3, -12.6), (30.3, -13.4), (35.3, -13.4), (35.3, -12.6)])
sketch7.addConstraint([
    Sketcher.Constraint("Vertical", 0),
    Sketcher.Constraint("Horizontal", 1),
    Sketcher.Constraint("Vertical", 2),
    Sketcher.Constraint("Horizontal", 3),
    Sketcher.Constraint("Vertical", 4),
    Sketcher.Constraint("Horizontal", 5),
    Sketcher.Constraint("Vertical", 6),
    Sketcher.Constraint("Horizontal", 7),
    Sketcher.Constraint("Vertical", 8),
    Sketcher.Constraint("Horizontal", 9),
    Sketcher.Constraint("Vertical", 10),
    Sketcher.Constraint("Horizontal", 11),
    Sketcher.Constraint("Vertical", 12),
    Sketcher.Constraint("Horizontal", 13),
    Sketcher.Constraint("Vertical", 14),
    Sketcher.Constraint("Horizontal", 15),
    Sketcher.Constraint("Vertical", 16),
    Sketcher.Constraint("Horizontal", 17),
    Sketcher.Constraint("Vertical", 18),
    Sketcher.Constraint("Horizontal", 19),
    Sketcher.Constraint("Vertical", 20),
    Sketcher.Constraint("Horizontal", 21),
    Sketcher.Constraint("Vertical", 22),
    Sketcher.Constraint("Horizontal", 23),
    Sketcher.Constraint("Symmetric", 3, 2, 8, 2, -1),
    Sketcher.Constraint("Symmetric", 1, 2, 10, 2, -1),
    Sketcher.Constraint("Symmetric", 7, 2, 12, 2, -1),
    Sketcher.Constraint("Symmetric", 5, 2, 14, 2, -1),
    Sketcher.Constraint("Horizontal", 5, 2, 8, 2),
    Sketcher.Constraint("Horizontal", 7, 2, 10, 2),
    Sketcher.Constraint("Horizontal", 13, 2, 16, 2),
    Sketcher.Constraint("Horizontal", 15, 2, 18, 2),
    Sketcher.Constraint("Horizontal", 9, 2, 20, 2),
    Sketcher.Constraint("Horizontal", 11, 2, 22, 2),
    Sketcher.Constraint("Equal", 3, 5),
    Sketcher.Constraint("Equal", 15, 17),
    Sketcher.Constraint("Equal", 19, 21),
    Sketcher.Constraint("DistanceX", 1, 1, 1, 2, Q("5 mm")),
    Sketcher.Constraint("DistanceY", 0, 2, 0, 1, Q("0.8 mm")),
    Sketcher.Constraint("DistanceY", 4, 2, 1, 2, Q("26 mm")),
    Sketcher.Constraint("DistanceX", 0, 2, -1, 1, Q("29.75 mm")),
    Sketcher.Constraint("DistanceX", 13, 2, 16, 2, Q("25.212502 mm")),
    Sketcher.Constraint("DistanceX", 20, 2, 16, 2, Q("0.177799 mm")),
    Sketcher.Constraint("DistanceX", -1, 1, 16, 2, Q("30.479809 mm")),
])
pad4 = body.newObject("PartDesign::Pad", "Pad003")
pad4.Profile = sketch7
pad4.Length = 2

sketch8 = body.newObject("Sketcher::SketchObject", "Sketch007")
sketch8.AttachmentSupport = (doc.getObject("XZ_Plane"), [""])
sketch8.MapMode = "FlatFace"
sketch8.AttachmentOffset = App.Placement(V(0, 0, -0.8), App.Rotation())
sketch8.addGeometry([
    Part.LineSegment(V(32.5, 10.6, 0), V(-32.5, 10.6, 0)),
    Part.ArcOfCircle(Part.Circle(V(-32.5, 11.1, 0), V(0, 0, 1), 0.5), math.radians(90), math.radians(270)),
    Part.LineSegment(V(-32.5, 11.6, 0), V(32.5, 11.6, 0)),
    Part.ArcOfCircle(Part.Circle(V(32.5, 11.1, 0), V(0, 0, 1), 0.5), math.radians(-90), math.radians(90)),
], False)
sketch8.addConstraint([
    Sketcher.Constraint("Tangent", 0, 2, 1, 2),
    Sketcher.Constraint("Tangent", 1, 1, 2, 1),
    Sketcher.Constraint("Tangent", 2, 2, 3, 2),
    Sketcher.Constraint("Tangent", 3, 1, 0, 1),
    Sketcher.Constraint("Horizontal", 0),
    Sketcher.Constraint("Horizontal", 2),
    Sketcher.Constraint("Radius", 1, Q("0.5 mm")),
    Sketcher.Constraint("DistanceX", 0, 2, 0, 1, Q("65 mm")),
    Sketcher.Constraint("DistanceX", 1, 3, -1, 1, Q("32.5 mm")),
    Sketcher.Constraint("DistanceY", -1, 1, 1, 3, Q("11.088064 mm")),
])
pocket4 = body.newObject("PartDesign::Pocket", "Pocket003")
pocket4.Profile = sketch8
pocket4.Length = 0.5
pocket4.Reversed = True
doc.recompute()

fillet = body.newObject("PartDesign::Fillet", "Fillet")
fillet.Base = (pocket4, edges_at(pocket4, [
    (-33, 0.3, 11.088),
    (0, 0.3, 10.588),
    (33, 0.3, 11.088),
    (0, 0.3, 11.588),
    (-33, 0.8, 11.088),
    (0, 0.8, 11.588),
    (33, 0.8, 11.088),
    (0, 0.8, 10.588),
]))
fillet.Radius = 0.2
doc.recompute()

mirrored = body.newObject("PartDesign::Mirrored", "Mirrored")
mirrored.Originals = [pocket4]
mirrored.MirrorPlane = (doc.getObject("XY_Plane"), [""])
body.Tip = mirrored
doc.recompute()

fillet2 = body.newObject("PartDesign::Fillet", "Fillet001")
fillet2.Base = (mirrored, edges_at(mirrored, [
    (-33, 0.3, -11.088),
    (0, 0.3, -10.588),
    (33, 0.3, -11.088),
    (0, 0.3, -11.588),
    (-33, 0.8, -11.088),
    (0, 0.8, -11.588),
    (33, 0.8, -11.088),
    (0, 0.8, -10.588),
]))
fillet2.Radius = 0.2

sketch9 = body.newObject("Sketcher::SketchObject", "Sketch008")
sketch9.AttachmentSupport = (doc.getObject("XZ_Plane"), [""])
sketch9.MapMode = "FlatFace"
sketch9.AttachmentOffset = App.Placement(V(0, 0, -0.8), App.Rotation())
sketch9.addGeometry([
    Part.LineSegment(V(-31.3, 7, 0), V(31.2, 7, 0)),
    Part.ArcOfCircle(Part.Circle(V(31.2, 6, 0), V(0, 0, 1), 1), math.radians(0), math.radians(90)),
    Part.LineSegment(V(32.2, 6, 0), V(32.2, -5.8, 0)),
    Part.ArcOfCircle(Part.Circle(V(31.2, -5.8, 0), V(0, 0, 1), 1), math.radians(-90), math.radians(0)),
    Part.LineSegment(V(31.2, -6.8, 0), V(-31.3, -6.8, 0)),
    Part.ArcOfCircle(Part.Circle(V(-31.3, -5.8, 0), V(0, 0, 1), 1), math.radians(-180), math.radians(-90)),
    Part.LineSegment(V(-32.3, -5.8, 0), V(-32.3, 6, 0)),
    Part.ArcOfCircle(Part.Circle(V(-31.3, 6, 0), V(0, 0, 1), 1), math.radians(90), math.radians(180)),
], False)
sketch9.addConstraint([
    Sketcher.Constraint("Tangent", 0, 2, 1, 2),
    Sketcher.Constraint("Tangent", 1, 1, 2, 1),
    Sketcher.Constraint("Tangent", 2, 2, 3, 2),
    Sketcher.Constraint("Tangent", 3, 1, 4, 1),
    Sketcher.Constraint("Tangent", 4, 2, 5, 2),
    Sketcher.Constraint("Tangent", 5, 1, 6, 1),
    Sketcher.Constraint("Tangent", 6, 2, 7, 2),
    Sketcher.Constraint("Tangent", 7, 1, 0, 1),
    Sketcher.Constraint("Horizontal", 0),
    Sketcher.Constraint("Vertical", 2),
    Sketcher.Constraint("Horizontal", 4),
    Sketcher.Constraint("Vertical", 6),
    Sketcher.Constraint("Equal", 1, 3),
    Sketcher.Constraint("Equal", 3, 5),
    Sketcher.Constraint("Equal", 5, 7),
    Sketcher.Constraint("Radius", 1, Q("1 mm")),
    Sketcher.Constraint("DistanceX", 0, 1, 0, 2, Q("62.5 mm")),
    Sketcher.Constraint("DistanceY", 2, 2, 2, 1, Q("11.8 mm")),
    Sketcher.Constraint("DistanceX", -1, 1, 1, 3, Q("31.219618 mm")),
    Sketcher.Constraint("DistanceY", -1, 1, 1, 3, Q("5.979907 mm")),
])
pocket5 = body.newObject("PartDesign::Pocket", "Pocket004")
pocket5.Profile = sketch9
pocket5.Type = "UpToFirst"
pocket5.Reversed = True

doc.recompute()
